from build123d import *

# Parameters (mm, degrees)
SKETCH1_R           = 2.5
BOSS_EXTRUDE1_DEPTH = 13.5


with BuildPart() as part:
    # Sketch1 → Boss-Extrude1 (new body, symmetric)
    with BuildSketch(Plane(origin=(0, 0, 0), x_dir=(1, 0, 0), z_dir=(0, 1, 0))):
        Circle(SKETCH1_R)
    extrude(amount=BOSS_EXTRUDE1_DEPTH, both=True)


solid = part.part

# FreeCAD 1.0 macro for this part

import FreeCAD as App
import Part
import Sketcher
from FreeCAD import Vector
Q = App.Units.Quantity

doc = App.newDocument("Part")
body = doc.addObject("PartDesign::Body", "Body")

sketch1 = body.newObject("Sketcher::SketchObject", "Sketch")
sketch1.AttachmentSupport = (doc.getObject("XZ_Plane"), [""])
sketch1.MapMode = "FlatFace"
sketch1.addGeometry(Part.Circle(Vector(0, 0, 0), Vector(0, 0, 1), 2.5), False)
sketch1.addConstraint([
    Sketcher.Constraint("Coincident", 0, 3, -1, 1),
    Sketcher.Constraint("Diameter", 0, Q("5 mm")),
])
pad1 = body.newObject("PartDesign::Pad", "Pad")
pad1.Profile = sketch1
pad1.Length = 27
pad1.Midplane = True

doc.recompute()
